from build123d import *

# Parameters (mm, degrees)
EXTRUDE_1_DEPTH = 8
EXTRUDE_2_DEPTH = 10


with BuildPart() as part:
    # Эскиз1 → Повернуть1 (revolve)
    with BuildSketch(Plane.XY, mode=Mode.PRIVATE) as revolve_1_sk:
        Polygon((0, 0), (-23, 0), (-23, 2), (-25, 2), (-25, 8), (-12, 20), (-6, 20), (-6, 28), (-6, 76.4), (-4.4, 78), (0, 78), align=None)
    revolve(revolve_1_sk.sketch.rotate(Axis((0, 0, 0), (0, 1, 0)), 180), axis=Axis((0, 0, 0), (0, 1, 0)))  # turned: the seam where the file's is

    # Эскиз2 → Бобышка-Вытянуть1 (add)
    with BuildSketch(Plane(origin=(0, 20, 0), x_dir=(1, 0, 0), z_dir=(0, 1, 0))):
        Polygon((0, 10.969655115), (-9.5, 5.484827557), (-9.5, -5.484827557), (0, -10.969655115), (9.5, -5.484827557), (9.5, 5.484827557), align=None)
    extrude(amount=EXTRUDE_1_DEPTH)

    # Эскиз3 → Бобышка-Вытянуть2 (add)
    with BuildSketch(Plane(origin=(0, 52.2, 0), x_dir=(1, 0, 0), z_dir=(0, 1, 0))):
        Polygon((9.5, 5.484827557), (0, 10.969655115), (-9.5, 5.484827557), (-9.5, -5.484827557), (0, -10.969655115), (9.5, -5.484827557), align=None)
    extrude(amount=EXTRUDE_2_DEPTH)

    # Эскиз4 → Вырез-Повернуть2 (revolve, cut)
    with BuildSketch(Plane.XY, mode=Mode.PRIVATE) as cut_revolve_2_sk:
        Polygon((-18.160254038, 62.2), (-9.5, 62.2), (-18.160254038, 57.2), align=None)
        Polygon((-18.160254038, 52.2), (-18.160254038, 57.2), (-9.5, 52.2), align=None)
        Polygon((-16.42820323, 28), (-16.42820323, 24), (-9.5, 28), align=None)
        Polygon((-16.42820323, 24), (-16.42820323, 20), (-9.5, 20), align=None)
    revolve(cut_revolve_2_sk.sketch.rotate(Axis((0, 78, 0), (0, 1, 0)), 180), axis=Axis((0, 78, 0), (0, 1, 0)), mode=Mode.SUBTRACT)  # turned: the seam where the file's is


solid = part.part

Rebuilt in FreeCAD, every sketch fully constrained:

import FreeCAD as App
import Part
import Sketcher
Q = App.Units.Quantity

doc = App.newDocument("Part")
params = doc.addObject("Spreadsheet::Sheet", "Params")
for row, (alias, value) in enumerate([
    ("sketch1_width", "23 mm"),
    ("sketch1_width2", "6 mm"),
    ("sketch1_width3", "2 mm"),
    ("sketch1_height", "78 mm"),
    ("sketch1_width4", "4.4 mm"),
    ("revolution_angle", "360 deg"),
    ("pad1_length", "8 mm"),
    ("pad2_length", "10 mm"),
    ("sketch4_height", "5 mm"),
    ("sketch4_height2", "4 mm"),
    ("groove_angle", "360 deg"),
], start=1):
    params.set(f"A{row}", alias)
    params.set(f"B{row}", "=" + value)
    params.setAlias(f"B{row}", alias)

body = doc.addObject("PartDesign::Body", "Body")

sketch1 = doc.addObject("Sketcher::SketchObject", "Sketch")
body.addObject(sketch1)
sketch1.AttachmentSupport = (doc.XY_Plane, [""])
sketch1.MapMode = "FlatFace"
sketch1.addGeometry(Part.LineSegment(App.Vector(-23, 0, 0), App.Vector(0, 0, 0)), False)
sketch1.addGeometry(Part.LineSegment(App.Vector(0, 0, 0), App.Vector(0, 78, 0)), False)
sketch1.addGeometry(Part.LineSegment(App.Vector(0, 78, 0), App.Vector(-4.4, 78, 0)), False)
sketch1.addGeometry(Part.LineSegment(App.Vector(-4.4, 78, 0), App.Vector(-6, 76.4, 0)), False)
sketch1.addGeometry(Part.LineSegment(App.Vector(-6, 76.4, 0), App.Vector(-6, 20, 0)), False)
sketch1.addGeometry(Part.LineSegment(App.Vector(-6, 20, 0), App.Vector(-12, 20, 0)), False)
sketch1.addGeometry(Part.LineSegment(App.Vector(-12, 20, 0), App.Vector(-25, 8, 0)), False)
sketch1.addGeometry(Part.LineSegment(App.Vector(-25, 8, 0), App.Vector(-25, 2, 0)), False)
sketch1.addGeometry(Part.LineSegment(App.Vector(-25, 2, 0), App.Vector(-23, 2, 0)), False)
sketch1.addGeometry(Part.LineSegment(App.Vector(-23, 2, 0), App.Vector(-23, 0, 0)), False)
sketch1.addConstraint(Sketcher.Constraint("Coincident", 0, 2, 1, 1))
sketch1.addConstraint(Sketcher.Constraint("Coincident", 1, 2, 2, 1))
sketch1.addConstraint(Sketcher.Constraint("Coincident", 2, 2, 3, 1))
sketch1.addConstraint(Sketcher.Constraint("Coincident", 3, 2, 4, 1))
sketch1.addConstraint(Sketcher.Constraint("Coincident", 4, 2, 5, 1))
sketch1.addConstraint(Sketcher.Constraint("Coincident", 5, 2, 6, 1))
sketch1.addConstraint(Sketcher.Constraint("Coincident", 6, 2, 7, 1))
sketch1.addConstraint(Sketcher.Constraint("Coincident", 7, 2, 8, 1))
sketch1.addConstraint(Sketcher.Constraint("Coincident", 8, 2, 9, 1))
sketch1.addConstraint(Sketcher.Constraint("Coincident", 9, 2, 0, 1))
sketch1.addConstraint(Sketcher.Constraint("Horizontal", 0))
sketch1.addConstraint(Sketcher.Constraint("Vertical", 1))
sketch1.addConstraint(Sketcher.Constraint("Horizontal", 2))
sketch1.addConstraint(Sketcher.Constraint("Vertical", 4))
sketch1.addConstraint(Sketcher.Constraint("Horizontal", 5))
sketch1.addConstraint(Sketcher.Constraint("Vertical", 7))
sketch1.addConstraint(Sketcher.Constraint("Horizontal", 8))
sketch1.addConstraint(Sketcher.Constraint("Vertical", 9))
sketch1.addConstraint(Sketcher.Constraint("Coincident", 0, 2, -1, 1))
sketch1.addConstraint(Sketcher.Constraint("Equal", 5, 7))
sketch1.addConstraint(Sketcher.Constraint("Equal", 8, 9))
sketch1.addConstraint(Sketcher.Constraint("DistanceX", 0, 1, 0, 2, Q("23 mm")))
sketch1.addConstraint(Sketcher.Constraint("DistanceX", 5, 2, 5, 1, Q("6 mm")))
sketch1.addConstraint(Sketcher.Constraint("DistanceX", 8, 1, 8, 2, Q("2 mm")))
sketch1.addConstraint(Sketcher.Constraint("DistanceY", 1, 1, 1, 2, Q("78 mm")))
sketch1.addConstraint(Sketcher.Constraint("Angle", 3, Q("-135 deg")))
sketch1.addConstraint(Sketcher.Constraint("DistanceX", 2, 2, 2, 1, Q("4.4 mm")))
sketch1.addConstraint(Sketcher.Constraint("DistanceY", 4, 2, 4, 1, Q("56.4 mm")))
sketch1.addConstraint(Sketcher.Constraint("DistanceX", 3, 2, -1, 1, Q("6 mm")))
sketch1.setExpression("Constraints[21]", "Params.sketch1_width")
sketch1.setExpression("Constraints[22]", "Params.sketch1_width2")
sketch1.setExpression("Constraints[23]", "Params.sketch1_width3")
sketch1.setExpression("Constraints[24]", "Params.sketch1_height")
sketch1.setExpression("Constraints[26]", "Params.sketch1_width4")
revolution = doc.addObject("PartDesign::Revolution", "Revolution")
body.addObject(revolution)
revolution.Profile = sketch1
revolution.ReferenceAxis = (sketch1, ["V_Axis"])
revolution.setExpression("Angle", "Params.revolution_angle")

sketch2 = doc.addObject("Sketcher::SketchObject", "Sketch001")
body.addObject(sketch2)
sketch2.AttachmentSupport = (doc.XZ_Plane, [""])
sketch2.MapMode = "FlatFace"
sketch2.AttachmentOffset = App.Placement(App.Vector(0, 0, -20), App.Rotation())
sketch2.addGeometry(Part.LineSegment(App.Vector(0, -11, 0), App.Vector(-10, -5, 0)), False)
sketch2.addGeometry(Part.LineSegment(App.Vector(-10, -5, 0), App.Vector(-10, 5, 0)), False)
sketch2.addGeometry(Part.LineSegment(App.Vector(-10, 5, 0), App.Vector(0, 11, 0)), False)
sketch2.addGeometry(Part.LineSegment(App.Vector(0, 11, 0), App.Vector(10, 5, 0)), False)
sketch2.addGeometry(Part.LineSegment(App.Vector(10, 5, 0), App.Vector(10, -5, 0)), False)
sketch2.addGeometry(Part.LineSegment(App.Vector(10, -5, 0), App.Vector(0, -11, 0)), False)
sketch2.addConstraint(Sketcher.Constraint("Coincident", 0, 2, 1, 1))
sketch2.addConstraint(Sketcher.Constraint("Coincident", 1, 2, 2, 1))
sketch2.addConstraint(Sketcher.Constraint("Coincident", 2, 2, 3, 1))
sketch2.addConstraint(Sketcher.Constraint("Coincident", 3, 2, 4, 1))
sketch2.addConstraint(Sketcher.Constraint("Coincident", 4, 2, 5, 1))
sketch2.addConstraint(Sketcher.Constraint("Coincident", 5, 2, 0, 1))
sketch2.addConstraint(Sketcher.Constraint("Vertical", 1))
sketch2.addConstraint(Sketcher.Constraint("Vertical", 4))
sketch2.addConstraint(Sketcher.Constraint("Symmetric", 0, 2, 3, 2, -1, 1))
sketch2.addConstraint(Sketcher.Constraint("Symmetric", 2, 2, 5, 2, -1, 1))
sketch2.addConstraint(Sketcher.Constraint("PointOnObject", 2, 2, -2))
sketch2.addConstraint(Sketcher.Constraint("Parallel", 2, 5))
sketch2.addConstraint(Sketcher.Constraint("Horizontal", 1, 2, 3, 2))
sketch2.addConstraint(Sketcher.Constraint("Angle", 0, Q("150 deg")))
sketch2.addConstraint(Sketcher.Constraint("DistanceX", 1, 2, 3, 2, Q("19 mm")))
sketch2.addConstraint(Sketcher.Constraint("DistanceY", 1, 1, 1, 2, Q("10.969655 mm")))
pad1 = doc.addObject("PartDesign::Pad", "Pad")
body.addObject(pad1)
pad1.Profile = sketch2
pad1.setExpression("Length", "Params.pad1_length")
pad1.Reversed = True

sketch3 = doc.addObject("Sketcher::SketchObject", "Sketch002")
body.addObject(sketch3)
sketch3.AttachmentSupport = (doc.XZ_Plane, [""])
sketch3.MapMode = "FlatFace"
sketch3.AttachmentOffset = App.Placement(App.Vector(0, 0, -52.2), App.Rotation())
sketch3.addGeometry(Part.LineSegment(App.Vector(10, -5, 0), App.Vector(0, -11, 0)), False)
sketch3.addGeometry(Part.LineSegment(App.Vector(0, -11, 0), App.Vector(-10, -5, 0)), False)
sketch3.addGeometry(Part.LineSegment(App.Vector(-10, -5, 0), App.Vector(-10, 5, 0)), False)
sketch3.addGeometry(Part.LineSegment(App.Vector(-10, 5, 0), App.Vector(0, 11, 0)), False)
sketch3.addGeometry(Part.LineSegment(App.Vector(0, 11, 0), App.Vector(10, 5, 0)), False)
sketch3.addGeometry(Part.LineSegment(App.Vector(10, 5, 0), App.Vector(10, -5, 0)), False)
sketch3.addConstraint(Sketcher.Constraint("Coincident", 0, 2, 1, 1))
sketch3.addConstraint(Sketcher.Constraint("Coincident", 1, 2, 2, 1))
sketch3.addConstraint(Sketcher.Constraint("Coincident", 2, 2, 3, 1))
sketch3.addConstraint(Sketcher.Constraint("Coincident", 3, 2, 4, 1))
sketch3.addConstraint(Sketcher.Constraint("Coincident", 4, 2, 5, 1))
sketch3.addConstraint(Sketcher.Constraint("Coincident", 5, 2, 0, 1))
sketch3.addConstraint(Sketcher.Constraint("Vertical", 2))
sketch3.addConstraint(Sketcher.Constraint("Vertical", 5))
sketch3.addConstraint(Sketcher.Constraint("Symmetric", 0, 2, 3, 2, -1, 1))
sketch3.addConstraint(Sketcher.Constraint("Symmetric", 1, 2, 4, 2, -1, 1))
sketch3.addConstraint(Sketcher.Constraint("PointOnObject", 0, 2, -2))
sketch3.addConstraint(Sketcher.Constraint("Parallel", 0, 3))
sketch3.addConstraint(Sketcher.Constraint("Horizontal", 2, 2, 4, 2))
sketch3.addConstraint(Sketcher.Constraint("Angle", 0, Q("-150 deg")))
sketch3.addConstraint(Sketcher.Constraint("DistanceX", 2, 2, 4, 2, Q("19 mm")))
sketch3.addConstraint(Sketcher.Constraint("DistanceY", 2, 1, 2, 2, Q("10.969655 mm")))
pad2 = doc.addObject("PartDesign::Pad", "Pad001")
body.addObject(pad2)
pad2.Profile = sketch3
pad2.setExpression("Length", "Params.pad2_length")
pad2.Reversed = True

sketch4 = doc.addObject("Sketcher::SketchObject", "Sketch003")
body.addObject(sketch4)
sketch4.AttachmentSupport = (doc.XY_Plane, [""])
sketch4.MapMode = "FlatFace"
sketch4.addGeometry(Part.LineSegment(App.Vector(-9.5, 62.2, 0), App.Vector(-18.2, 62.2, 0)), False)
sketch4.addGeometry(Part.LineSegment(App.Vector(-18.2, 62.2, 0), App.Vector(-18.2, 57.2, 0)), False)
sketch4.addGeometry(Part.LineSegment(App.Vector(-18.2, 57.2, 0), App.Vector(-9.5, 62.2, 0)), False)
sketch4.addGeometry(Part.LineSegment(App.Vector(-18.2, 57.2, 0), App.Vector(-18.2, 52.2, 0)), False)
sketch4.addGeometry(Part.LineSegment(App.Vector(-18.2, 52.2, 0), App.Vector(-9.5, 52.2, 0)), False)
sketch4.addGeometry(Part.LineSegment(App.Vector(-9.5, 52.2, 0), App.Vector(-18.2, 57.2, 0)), False)
sketch4.addGeometry(Part.LineSegment(App.Vector(-16.4, 28, 0), App.Vector(-16.4, 24, 0)), False)
sketch4.addGeometry(Part.LineSegment(App.Vector(-16.4, 24, 0), App.Vector(-9.5, 28, 0)), False)
sketch4.addGeometry(Part.LineSegment(App.Vector(-9.5, 28, 0), App.Vector(-16.4, 28, 0)), False)
sketch4.addGeometry(Part.LineSegment(App.Vector(-16.4, 24, 0), App.Vector(-16.4, 20, 0)), False)
sketch4.addGeometry(Part.LineSegment(App.Vector(-16.4, 20, 0), App.Vector(-9.5, 20, 0)), False)
sketch4.addGeometry(Part.LineSegment(App.Vector(-9.5, 20, 0), App.Vector(-16.4, 24, 0)), False)
sketch4.addConstraint(Sketcher.Constraint("Coincident", 0, 2, 1, 1))
sketch4.addConstraint(Sketcher.Constraint("Coincident", 1, 2, 2, 1))
sketch4.addConstraint(Sketcher.Constraint("Coincident", 2, 2, 0, 1))
sketch4.addConstraint(Sketcher.Constraint("Coincident", 3, 2, 4, 1))
sketch4.addConstraint(Sketcher.Constraint("Coincident", 4, 2, 5, 1))
sketch4.addConstraint(Sketcher.Constraint("Coincident", 5, 2, 3, 1))
sketch4.addConstraint(Sketcher.Constraint("Coincident", 6, 2, 7, 1))
sketch4.addConstraint(Sketcher.Constraint("Coincident", 7, 2, 8, 1))
sketch4.addConstraint(Sketcher.Constraint("Coincident", 8, 2, 6, 1))
sketch4.addConstraint(Sketcher.Constraint("Coincident", 9, 2, 10, 1))
sketch4.addConstraint(Sketcher.Constraint("Coincident", 10, 2, 11, 1))
sketch4.addConstraint(Sketcher.Constraint("Coincident", 11, 2, 9, 1))
sketch4.addConstraint(Sketcher.Constraint("Horizontal", 0))
sketch4.addConstraint(Sketcher.Constraint("Vertical", 1))
sketch4.addConstraint(Sketcher.Constraint("Vertical", 3))
sketch4.addConstraint(Sketcher.Constraint("Horizontal", 4))
sketch4.addConstraint(Sketcher.Constraint("Vertical", 6))
sketch4.addConstraint(Sketcher.Constraint("Horizontal", 8))
sketch4.addConstraint(Sketcher.Constraint("Vertical", 9))
sketch4.addConstraint(Sketcher.Constraint("Horizontal", 10))
sketch4.addConstraint(Sketcher.Constraint("Coincident", 5, 2, 1, 2))
sketch4.addConstraint(Sketcher.Constraint("Coincident", 11, 2, 6, 2))
sketch4.addConstraint(Sketcher.Constraint("Parallel", 2, 7))
sketch4.addConstraint(Sketcher.Constraint("Parallel", 5, 11))
sketch4.addConstraint(Sketcher.Constraint("Vertical", 2, 2, 4, 2))
sketch4.addConstraint(Sketcher.Constraint("Vertical", 4, 2, 7, 2))
sketch4.addConstraint(Sketcher.Constraint("Vertical", 7, 2, 10, 2))
sketch4.addConstraint(Sketcher.Constraint("Equal", 1, 3))
sketch4.addConstraint(Sketcher.Constraint("DistanceY", 1, 2, 1, 1, Q("5 mm")))
sketch4.addConstraint(Sketcher.Constraint("DistanceY", 6, 2, 6, 1, Q("4 mm")))
sketch4.addConstraint(Sketcher.Constraint("Angle", 2, Q("30 deg")))
sketch4.addConstraint(Sketcher.Constraint("DistanceY", -1, 1, 6, 2, Q("24 mm")))
sketch4.addConstraint(Sketcher.Constraint("DistanceY", -1, 1, 0, 2, Q("62.2 mm")))
sketch4.addConstraint(Sketcher.Constraint("DistanceX", 2, 2, -1, 1, Q("9.5 mm")))
sketch4.setExpression("Constraints[28]", "Params.sketch4_height")
sketch4.setExpression("Constraints[29]", "Params.sketch4_height2")
groove = doc.addObject("PartDesign::Groove", "Groove")
body.addObject(groove)
groove.Profile = sketch4
groove.ReferenceAxis = (sketch4, ["V_Axis"])
groove.setExpression("Angle", "Params.groove_angle")

doc.recompute()
